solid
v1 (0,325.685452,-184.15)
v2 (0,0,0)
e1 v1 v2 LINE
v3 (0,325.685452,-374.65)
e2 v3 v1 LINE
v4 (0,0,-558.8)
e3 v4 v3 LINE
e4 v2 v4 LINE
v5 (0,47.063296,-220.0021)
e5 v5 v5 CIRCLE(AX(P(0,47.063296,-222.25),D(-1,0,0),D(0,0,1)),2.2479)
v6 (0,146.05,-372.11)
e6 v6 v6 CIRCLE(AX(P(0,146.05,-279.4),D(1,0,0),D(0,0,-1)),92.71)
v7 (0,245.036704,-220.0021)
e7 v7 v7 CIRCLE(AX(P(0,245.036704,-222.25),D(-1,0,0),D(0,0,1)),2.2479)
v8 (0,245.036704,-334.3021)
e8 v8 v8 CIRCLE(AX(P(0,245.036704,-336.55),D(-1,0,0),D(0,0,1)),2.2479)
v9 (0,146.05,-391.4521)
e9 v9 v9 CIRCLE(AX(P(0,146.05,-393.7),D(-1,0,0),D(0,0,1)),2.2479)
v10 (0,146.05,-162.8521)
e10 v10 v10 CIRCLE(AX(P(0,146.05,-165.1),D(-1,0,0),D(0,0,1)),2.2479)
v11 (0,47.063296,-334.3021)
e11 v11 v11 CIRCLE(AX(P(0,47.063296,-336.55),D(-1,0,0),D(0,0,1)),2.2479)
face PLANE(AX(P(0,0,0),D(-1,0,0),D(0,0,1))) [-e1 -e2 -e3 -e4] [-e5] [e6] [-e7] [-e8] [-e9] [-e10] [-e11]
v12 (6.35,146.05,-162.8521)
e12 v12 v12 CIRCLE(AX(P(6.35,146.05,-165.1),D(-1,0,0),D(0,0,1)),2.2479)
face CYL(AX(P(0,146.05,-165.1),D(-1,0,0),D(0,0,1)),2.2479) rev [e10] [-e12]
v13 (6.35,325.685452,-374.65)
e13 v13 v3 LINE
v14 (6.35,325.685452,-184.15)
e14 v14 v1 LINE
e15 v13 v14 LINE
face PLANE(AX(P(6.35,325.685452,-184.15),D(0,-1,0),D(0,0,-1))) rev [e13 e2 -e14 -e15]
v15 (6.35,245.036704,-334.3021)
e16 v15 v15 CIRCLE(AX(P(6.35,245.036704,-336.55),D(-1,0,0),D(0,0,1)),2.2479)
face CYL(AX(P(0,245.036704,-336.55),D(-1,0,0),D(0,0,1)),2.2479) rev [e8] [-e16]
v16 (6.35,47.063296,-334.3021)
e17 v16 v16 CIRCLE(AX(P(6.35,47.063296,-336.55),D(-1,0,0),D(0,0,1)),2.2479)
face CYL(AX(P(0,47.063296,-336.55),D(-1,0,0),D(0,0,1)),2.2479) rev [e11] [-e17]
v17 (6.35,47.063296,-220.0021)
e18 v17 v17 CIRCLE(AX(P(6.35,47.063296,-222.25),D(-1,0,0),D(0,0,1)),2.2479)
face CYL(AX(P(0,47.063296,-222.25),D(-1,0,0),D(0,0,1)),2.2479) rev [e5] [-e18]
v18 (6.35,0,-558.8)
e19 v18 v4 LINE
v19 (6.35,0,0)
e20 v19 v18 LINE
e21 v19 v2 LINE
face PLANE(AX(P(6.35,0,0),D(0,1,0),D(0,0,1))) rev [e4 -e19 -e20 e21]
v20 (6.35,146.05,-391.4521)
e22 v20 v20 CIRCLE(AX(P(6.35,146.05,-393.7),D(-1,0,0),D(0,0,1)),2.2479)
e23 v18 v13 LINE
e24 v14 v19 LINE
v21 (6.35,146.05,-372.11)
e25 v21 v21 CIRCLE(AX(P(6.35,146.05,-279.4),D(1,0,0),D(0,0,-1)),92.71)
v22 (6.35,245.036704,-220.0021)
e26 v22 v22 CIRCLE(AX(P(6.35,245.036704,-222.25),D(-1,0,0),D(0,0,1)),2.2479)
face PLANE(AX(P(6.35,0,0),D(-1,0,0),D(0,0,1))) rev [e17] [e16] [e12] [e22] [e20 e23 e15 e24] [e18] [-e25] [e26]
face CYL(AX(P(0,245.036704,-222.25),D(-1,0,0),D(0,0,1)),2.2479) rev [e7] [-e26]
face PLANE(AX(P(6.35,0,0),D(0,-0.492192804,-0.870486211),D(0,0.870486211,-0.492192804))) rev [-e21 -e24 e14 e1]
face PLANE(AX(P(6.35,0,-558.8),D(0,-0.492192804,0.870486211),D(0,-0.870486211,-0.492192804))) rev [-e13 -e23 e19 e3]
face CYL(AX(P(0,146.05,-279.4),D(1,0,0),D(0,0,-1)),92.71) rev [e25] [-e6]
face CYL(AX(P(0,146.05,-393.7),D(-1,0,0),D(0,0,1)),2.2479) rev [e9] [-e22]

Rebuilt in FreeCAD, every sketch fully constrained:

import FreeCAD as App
import Part
import Sketcher

V = App.Vector
Q = App.Units.Quantity

doc = App.newDocument("Part")
body = doc.addObject("PartDesign::Body", "Body")

sketch1 = doc.addObject("Sketcher::SketchObject", "Sketch")
body.addObject(sketch1)
sketch1.AttachmentSupport = (doc.YZ_Plane, [""])
sketch1.MapMode = "FlatFace"
sketch1.addGeometry([
    Part.LineSegment(V(0, 0, 0), V(0, -559, 0)),
    Part.LineSegment(V(0, -559, 0), V(326, -375, 0)),
    Part.LineSegment(V(326, -375, 0), V(326, -184, 0)),
    Part.LineSegment(V(326, -184, 0), V(0, 0, 0)),
], False)
sketch1.addConstraint([
    Sketcher.Constraint("Coincident", 0, 2, 1, 1),
    Sketcher.Constraint("Coincident", 1, 2, 2, 1),
    Sketcher.Constraint("Coincident", 2, 2, 3, 1),
    Sketcher.Constraint("Coincident", 3, 2, 0, 1),
    Sketcher.Constraint("Vertical", 0),
    Sketcher.Constraint("Vertical", 2),
    Sketcher.Constraint("Coincident", 3, 2, -1, 1),
    Sketcher.Constraint("Equal", 1, 3),
    Sketcher.Constraint("DistanceY", 0, 2, 0, 1, Q("22 in")),
    Sketcher.Constraint("DistanceY", 2, 1, 2, 2, Q("7.5 in")),
    Sketcher.Constraint("Distance", 1, Q("14.73 in")),
])
pad1 = doc.addObject("PartDesign::Pad", "Pad")
body.addObject(pad1)
pad1.Profile = sketch1
pad1.Length = Q("0.25 in")

sketch2 = doc.addObject("Sketcher::SketchObject", "Sketch001")
body.addObject(sketch2)
sketch2.AttachmentSupport = (doc.YZ_Plane, [""])
sketch2.MapMode = "FlatFace"
sketch2.AttachmentOffset = App.Placement(V(0, 0, 0.25 * 25.4), App.Rotation())
sketch2.addGeometry(Part.Circle(V(146, -279, 0), V(0, 0, 1), 93), False)
sketch2.addConstraint([
    Sketcher.Constraint("Diameter", 0, Q("7.3 in")),
    Sketcher.Constraint("DistanceY", 0, 3, -1, 1, Q("11 in")),
    Sketcher.Constraint("DistanceX", -1, 1, 0, 3, Q("5.75 in")),
])
pocket1 = doc.addObject("PartDesign::Pocket", "Pocket")
body.addObject(pocket1)
pocket1.Profile = sketch2
pocket1.Type = "ThroughAll"

sketch3 = doc.addObject("Sketcher::SketchObject", "Sketch002")
body.addObject(sketch3)
sketch3.AttachmentSupport = (doc.YZ_Plane, [""])
sketch3.MapMode = "FlatFace"
sketch3.addGeometry([
    Part.Circle(V(245, -336.6, 0), V(0, 0, 1), 2.2),
    Part.Circle(V(245, -222.2, 0), V(0, 0, 1), 2.2),
    Part.Circle(V(146.1, -165.1, 0), V(0, 0, 1), 2.2),
    Part.Circle(V(47.1, -222.2, 0), V(0, 0, 1), 2.2),
    Part.Circle(V(47.1, -336.6, 0), V(0, 0, 1), 2.2),
    Part.Circle(V(146.1, -393.7, 0), V(0, 0, 1), 2.2),
], False)
sketch3.addConstraint([
    Sketcher.Constraint("Equal", 0, 1),
    Sketcher.Constraint("Equal", 1, 2),
    Sketcher.Constraint("Equal", 2, 3),
    Sketcher.Constraint("Equal", 3, 4),
    Sketcher.Constraint("Equal", 4, 5),
    Sketcher.Constraint("Horizontal", 1, 3, 3, 3),
    Sketcher.Constraint("Horizontal", 0, 3, 4, 3),
    Sketcher.Constraint("Vertical", 0, 3, 1, 3),
    Sketcher.Constraint("Vertical", 3, 3, 4, 3),
    Sketcher.Constraint("Vertical", 2, 3, 5, 3),
    Sketcher.Constraint("Diameter", 0, Q("0.177 in")),
    Sketcher.Constraint("DistanceY", 5, 3, 2, 3, Q("9 in")),
    Sketcher.Constraint("DistanceY", 2, 3, -1, 1, Q("6.5 in")),
    Sketcher.Constraint("DistanceY", 0, 3, 1, 3, Q("4.5 in")),
    Sketcher.Constraint("DistanceY", 0, 3, -1, 1, Q("13.25 in")),
    Sketcher.Constraint("DistanceX", -1, 1, 2, 3, Q("5.75 in")),
    Sketcher.Constraint("DistanceX", -1, 1, 0, 3, Q("245.036704 mm")),
    Sketcher.Constraint("DistanceX", -1, 1, 3, 3, Q("47.063296 mm")),
])
doc.recompute()
hole = doc.addObject("PartDesign::Hole", "Hole")
body.addObject(hole)
hole.Profile = sketch3
hole.ThreadType = "None"
hole.Diameter = Q("0.177 in")
hole.DepthType = "Dimension"
hole.Depth = Q("1 in")
hole.DrillPoint = "Angled"
hole.DrillPointAngle = 118
hole.Reversed = True

doc.recompute()
